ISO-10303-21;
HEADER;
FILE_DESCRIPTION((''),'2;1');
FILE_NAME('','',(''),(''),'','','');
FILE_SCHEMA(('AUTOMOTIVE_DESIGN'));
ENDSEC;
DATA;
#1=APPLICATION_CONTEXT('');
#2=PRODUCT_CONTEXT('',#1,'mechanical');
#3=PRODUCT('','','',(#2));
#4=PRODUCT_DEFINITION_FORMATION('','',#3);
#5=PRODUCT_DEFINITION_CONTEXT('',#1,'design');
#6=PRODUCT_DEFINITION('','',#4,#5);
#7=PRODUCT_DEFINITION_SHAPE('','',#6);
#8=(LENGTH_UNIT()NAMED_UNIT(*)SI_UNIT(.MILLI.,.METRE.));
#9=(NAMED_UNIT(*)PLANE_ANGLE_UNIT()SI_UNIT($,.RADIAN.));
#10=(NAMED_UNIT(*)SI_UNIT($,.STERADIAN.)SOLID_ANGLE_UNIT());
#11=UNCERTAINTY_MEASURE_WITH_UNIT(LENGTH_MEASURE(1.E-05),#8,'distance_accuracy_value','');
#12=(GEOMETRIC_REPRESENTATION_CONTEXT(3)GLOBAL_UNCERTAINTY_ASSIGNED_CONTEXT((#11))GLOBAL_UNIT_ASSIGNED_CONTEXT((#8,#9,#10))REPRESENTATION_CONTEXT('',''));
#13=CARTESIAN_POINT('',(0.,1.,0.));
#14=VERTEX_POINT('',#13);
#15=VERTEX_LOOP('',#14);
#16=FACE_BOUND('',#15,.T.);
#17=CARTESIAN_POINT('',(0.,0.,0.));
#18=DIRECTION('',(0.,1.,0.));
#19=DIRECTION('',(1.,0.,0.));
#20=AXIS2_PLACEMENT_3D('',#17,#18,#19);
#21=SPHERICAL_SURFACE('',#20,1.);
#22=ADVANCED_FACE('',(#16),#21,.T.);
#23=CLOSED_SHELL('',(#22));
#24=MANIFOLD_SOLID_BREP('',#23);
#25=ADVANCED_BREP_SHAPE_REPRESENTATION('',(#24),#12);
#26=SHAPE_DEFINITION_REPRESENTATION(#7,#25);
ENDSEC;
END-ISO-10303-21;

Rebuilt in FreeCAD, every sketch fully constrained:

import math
import FreeCAD as App
import Part
import Sketcher

V = App.Vector
Q = App.Units.Quantity

doc = App.newDocument("Part")
body = doc.addObject("PartDesign::Body", "Body")

# Sketch on XY plane
sketch1 = body.newObject("Sketcher::SketchObject", "Sketch")
sketch1.AttachmentSupport = (doc.getObject("XY_Plane"), [""])
sketch1.MapMode = "FlatFace"
sketch1.addGeometry([
    Part.LineSegment(V(0, 1, 0), V(0, -1, 0)),
    Part.ArcOfCircle(Part.Circle(V(0, 0, 0), V(0, 0, 1), 1), math.radians(-90), math.radians(90)),
], False)
sketch1.addConstraint([
    Sketcher.Constraint("Coincident", 0, 1, 1, 2),
    Sketcher.Constraint("Coincident", 1, 1, 0, 2),
    Sketcher.Constraint("Vertical", 0),
    Sketcher.Constraint("Coincident", 1, 3, -1, 1),
    Sketcher.Constraint("PointOnObject", 0, 1, -2),
    Sketcher.Constraint("Radius", 1, Q("1 mm")),
])
revolution = body.newObject("PartDesign::Revolution", "Revolution")
revolution.Profile = sketch1
revolution.ReferenceAxis = (sketch1, ["V_Axis"])
revolution.Angle = 360

doc.recompute()
